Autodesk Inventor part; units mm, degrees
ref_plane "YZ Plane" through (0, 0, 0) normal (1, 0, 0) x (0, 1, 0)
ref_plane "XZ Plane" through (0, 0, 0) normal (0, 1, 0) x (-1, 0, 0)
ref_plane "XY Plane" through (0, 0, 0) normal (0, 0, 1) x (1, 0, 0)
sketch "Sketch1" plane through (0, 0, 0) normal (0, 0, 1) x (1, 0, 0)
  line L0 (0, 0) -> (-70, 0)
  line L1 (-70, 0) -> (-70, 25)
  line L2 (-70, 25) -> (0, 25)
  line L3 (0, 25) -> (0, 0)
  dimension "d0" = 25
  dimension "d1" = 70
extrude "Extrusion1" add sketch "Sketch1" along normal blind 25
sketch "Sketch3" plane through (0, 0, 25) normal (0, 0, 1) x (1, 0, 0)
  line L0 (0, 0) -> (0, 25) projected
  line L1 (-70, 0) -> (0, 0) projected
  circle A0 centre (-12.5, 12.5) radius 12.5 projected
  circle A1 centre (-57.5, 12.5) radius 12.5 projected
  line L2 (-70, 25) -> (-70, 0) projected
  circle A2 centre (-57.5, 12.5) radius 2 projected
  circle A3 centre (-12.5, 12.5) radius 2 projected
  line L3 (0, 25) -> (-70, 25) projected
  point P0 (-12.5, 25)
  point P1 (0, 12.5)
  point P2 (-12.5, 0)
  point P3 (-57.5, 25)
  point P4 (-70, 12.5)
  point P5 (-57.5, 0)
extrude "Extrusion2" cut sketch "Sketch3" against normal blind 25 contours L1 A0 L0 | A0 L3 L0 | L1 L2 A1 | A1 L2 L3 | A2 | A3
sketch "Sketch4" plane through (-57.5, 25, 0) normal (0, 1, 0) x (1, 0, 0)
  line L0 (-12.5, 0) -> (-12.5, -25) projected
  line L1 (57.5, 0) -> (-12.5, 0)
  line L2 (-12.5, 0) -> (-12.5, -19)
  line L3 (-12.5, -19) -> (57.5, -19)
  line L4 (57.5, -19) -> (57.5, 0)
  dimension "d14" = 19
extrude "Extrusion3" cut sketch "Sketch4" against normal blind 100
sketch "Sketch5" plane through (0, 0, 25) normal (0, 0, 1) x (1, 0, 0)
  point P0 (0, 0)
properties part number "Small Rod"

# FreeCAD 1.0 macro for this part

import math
import FreeCAD as App
import Part
import Sketcher

V = App.Vector

doc = App.newDocument("Part")
body = doc.addObject("PartDesign::Body", "Body")

sketch1 = body.newObject("Sketcher::SketchObject", "Sketch")
sketch1.AttachmentSupport = (doc.getObject("XY_Plane"), [""])
sketch1.MapMode = "FlatFace"
sketch1.addGeometry([
    Part.LineSegment(V(-70, 0, 0), V(0, 0, 0)),
    Part.LineSegment(V(0, 0, 0), V(0, 25, 0)),
    Part.LineSegment(V(0, 25, 0), V(-70, 25, 0)),
    Part.LineSegment(V(-70, 25, 0), V(-70, 0, 0)),
], False)
sketch1.addConstraint([
    Sketcher.Constraint("Coincident", 0, 2, 1, 1),
    Sketcher.Constraint("Coincident", 1, 2, 2, 1),
    Sketcher.Constraint("Coincident", 2, 2, 3, 1),
    Sketcher.Constraint("Coincident", 3, 2, 0, 1),
    Sketcher.Constraint("Horizontal", 0),
    Sketcher.Constraint("Vertical", 1),
    Sketcher.Constraint("Horizontal", 2),
    Sketcher.Constraint("Vertical", 3),
    Sketcher.Constraint("Coincident", 0, 2, -1, 1),
    Sketcher.Constraint("DistanceX", 0, 1, 0, 2, 70.0),
    Sketcher.Constraint("DistanceY", 1, 1, 1, 2, 25.0),
])
pad1 = body.newObject("PartDesign::Pad", "Pad")
pad1.Profile = sketch1
pad1.Length = 25

sketch2 = body.newObject("Sketcher::SketchObject", "Sketch001")
sketch2.AttachmentSupport = (doc.getObject("XY_Plane"), [""])
sketch2.MapMode = "FlatFace"
sketch2.AttachmentOffset = App.Placement(V(0, 0, 25), App.Rotation())
sketch2.addGeometry([
    Part.LineSegment(V(-12.5, 0, 0), V(0, 0, 0)),
    Part.LineSegment(V(0, 0, 0), V(0, 12.5, 0)),
    Part.ArcOfCircle(Part.Circle(V(-12.5, 12.5, 0), V(0, 0, 1), 12.5), math.radians(-90), math.radians(0)),
    Part.ArcOfCircle(Part.Circle(V(-12.5, 12.5, 0), V(0, 0, 1), 12.5), math.radians(0), math.radians(90)),
    Part.LineSegment(V(0, 12.5, 0), V(0, 25, 0)),
    Part.LineSegment(V(0, 25, 0), V(-12.5, 25, 0)),
    Part.LineSegment(V(-70, 0, 0), V(-57.5, 0, 0)),
    Part.ArcOfCircle(Part.Circle(V(-57.5, 12.5, 0), V(0, 0, 1), 12.5), math.radians(180), math.radians(270)),
    Part.LineSegment(V(-70, 12.5, 0), V(-70, 0, 0)),
    Part.ArcOfCircle(Part.Circle(V(-57.5, 12.5, 0), V(0, 0, 1), 12.5), math.radians(90), math.radians(180)),
    Part.LineSegment(V(-57.5, 25, 0), V(-70, 25, 0)),
    Part.LineSegment(V(-70, 25, 0), V(-70, 12.5, 0)),
    Part.Circle(V(-57.5, 12.5, 0), V(0, 0, 1), 2),
    Part.Circle(V(-12.5, 12.5, 0), V(0, 0, 1), 2),
], False)
sketch2.addConstraint([
    Sketcher.Constraint("Coincident", 0, 2, 1, 1),
    Sketcher.Constraint("Tangent", 1, 2, 2, 2),
    Sketcher.Constraint("Tangent", 2, 1, 0, 1),
    Sketcher.Constraint("Tangent", 3, 1, 4, 1),
    Sketcher.Constraint("Coincident", 4, 2, 5, 1),
    Sketcher.Constraint("Tangent", 5, 2, 3, 2),
    Sketcher.Constraint("Tangent", 6, 2, 7, 2),
    Sketcher.Constraint("Tangent", 7, 1, 8, 1),
    Sketcher.Constraint("Coincident", 8, 2, 6, 1),
    Sketcher.Constraint("Tangent", 9, 1, 10, 1),
    Sketcher.Constraint("Coincident", 10, 2, 11, 1),
    Sketcher.Constraint("Tangent", 11, 2, 9, 2),
    Sketcher.Constraint("Horizontal", 0),
    Sketcher.Constraint("Vertical", 1),
    Sketcher.Constraint("Vertical", 4),
    Sketcher.Constraint("Horizontal", 5),
    Sketcher.Constraint("Horizontal", 6),
    Sketcher.Constraint("Vertical", 8),
    Sketcher.Constraint("Horizontal", 10),
    Sketcher.Constraint("Vertical", 11),
    Sketcher.Constraint("Coincident", 0, 2, -1, 1),
    Sketcher.Constraint("Coincident", 3, 3, 2, 3),
    Sketcher.Constraint("Coincident", 9, 3, 7, 3),
    Sketcher.Constraint("Coincident", 12, 3, 7, 3),
    Sketcher.Constraint("Coincident", 13, 3, 2, 3),
    Sketcher.Constraint("Equal", 2, 3),
    Sketcher.Constraint("Equal", 3, 7),
    Sketcher.Constraint("Equal", 7, 9),
    Sketcher.Constraint("Equal", 12, 13),
    Sketcher.Constraint("PointOnObject", 6, 2, -1),
    Sketcher.Constraint("Diameter", 12, 4.0),
    Sketcher.Constraint("Radius", 2, 12.5),
    Sketcher.Constraint("DistanceX", 7, 1, -1, 1, 70.0),
])
pocket1 = body.newObject("PartDesign::Pocket", "Pocket")
pocket1.Profile = sketch2
pocket1.Length = 25

sketch3 = body.newObject("Sketcher::SketchObject", "Sketch002")
sketch3.AttachmentSupport = (doc.getObject("XZ_Plane"), [""])
sketch3.MapMode = "FlatFace"
sketch3.AttachmentOffset = App.Placement(V(0, 0, -25), App.Rotation())
sketch3.addGeometry([
    Part.LineSegment(V(0, 0, 0), V(-70, 0, 0)),
    Part.LineSegment(V(-70, 0, 0), V(-70, 19, 0)),
    Part.LineSegment(V(-70, 19, 0), V(0, 19, 0)),
    Part.LineSegment(V(0, 19, 0), V(0, 0, 0)),
], False)
sketch3.addConstraint([
    Sketcher.Constraint("Coincident", 0, 2, 1, 1),
    Sketcher.Constraint("Coincident", 1, 2, 2, 1),
    Sketcher.Constraint("Coincident", 2, 2, 3, 1),
    Sketcher.Constraint("Coincident", 3, 2, 0, 1),
    Sketcher.Constraint("Horizontal", 0),
    Sketcher.Constraint("Vertical", 1),
    Sketcher.Constraint("Horizontal", 2),
    Sketcher.Constraint("Vertical", 3),
    Sketcher.Constraint("Coincident", 3, 2, -1, 1),
    Sketcher.Constraint("DistanceY", 1, 1, 1, 2, 19.0),
    Sketcher.Constraint("DistanceX", 0, 2, 0, 1, 70.0),
])
pocket2 = body.newObject("PartDesign::Pocket", "Pocket001")
pocket2.Profile = sketch3
pocket2.Length = 100
pocket2.Reversed = True

doc.recompute()
